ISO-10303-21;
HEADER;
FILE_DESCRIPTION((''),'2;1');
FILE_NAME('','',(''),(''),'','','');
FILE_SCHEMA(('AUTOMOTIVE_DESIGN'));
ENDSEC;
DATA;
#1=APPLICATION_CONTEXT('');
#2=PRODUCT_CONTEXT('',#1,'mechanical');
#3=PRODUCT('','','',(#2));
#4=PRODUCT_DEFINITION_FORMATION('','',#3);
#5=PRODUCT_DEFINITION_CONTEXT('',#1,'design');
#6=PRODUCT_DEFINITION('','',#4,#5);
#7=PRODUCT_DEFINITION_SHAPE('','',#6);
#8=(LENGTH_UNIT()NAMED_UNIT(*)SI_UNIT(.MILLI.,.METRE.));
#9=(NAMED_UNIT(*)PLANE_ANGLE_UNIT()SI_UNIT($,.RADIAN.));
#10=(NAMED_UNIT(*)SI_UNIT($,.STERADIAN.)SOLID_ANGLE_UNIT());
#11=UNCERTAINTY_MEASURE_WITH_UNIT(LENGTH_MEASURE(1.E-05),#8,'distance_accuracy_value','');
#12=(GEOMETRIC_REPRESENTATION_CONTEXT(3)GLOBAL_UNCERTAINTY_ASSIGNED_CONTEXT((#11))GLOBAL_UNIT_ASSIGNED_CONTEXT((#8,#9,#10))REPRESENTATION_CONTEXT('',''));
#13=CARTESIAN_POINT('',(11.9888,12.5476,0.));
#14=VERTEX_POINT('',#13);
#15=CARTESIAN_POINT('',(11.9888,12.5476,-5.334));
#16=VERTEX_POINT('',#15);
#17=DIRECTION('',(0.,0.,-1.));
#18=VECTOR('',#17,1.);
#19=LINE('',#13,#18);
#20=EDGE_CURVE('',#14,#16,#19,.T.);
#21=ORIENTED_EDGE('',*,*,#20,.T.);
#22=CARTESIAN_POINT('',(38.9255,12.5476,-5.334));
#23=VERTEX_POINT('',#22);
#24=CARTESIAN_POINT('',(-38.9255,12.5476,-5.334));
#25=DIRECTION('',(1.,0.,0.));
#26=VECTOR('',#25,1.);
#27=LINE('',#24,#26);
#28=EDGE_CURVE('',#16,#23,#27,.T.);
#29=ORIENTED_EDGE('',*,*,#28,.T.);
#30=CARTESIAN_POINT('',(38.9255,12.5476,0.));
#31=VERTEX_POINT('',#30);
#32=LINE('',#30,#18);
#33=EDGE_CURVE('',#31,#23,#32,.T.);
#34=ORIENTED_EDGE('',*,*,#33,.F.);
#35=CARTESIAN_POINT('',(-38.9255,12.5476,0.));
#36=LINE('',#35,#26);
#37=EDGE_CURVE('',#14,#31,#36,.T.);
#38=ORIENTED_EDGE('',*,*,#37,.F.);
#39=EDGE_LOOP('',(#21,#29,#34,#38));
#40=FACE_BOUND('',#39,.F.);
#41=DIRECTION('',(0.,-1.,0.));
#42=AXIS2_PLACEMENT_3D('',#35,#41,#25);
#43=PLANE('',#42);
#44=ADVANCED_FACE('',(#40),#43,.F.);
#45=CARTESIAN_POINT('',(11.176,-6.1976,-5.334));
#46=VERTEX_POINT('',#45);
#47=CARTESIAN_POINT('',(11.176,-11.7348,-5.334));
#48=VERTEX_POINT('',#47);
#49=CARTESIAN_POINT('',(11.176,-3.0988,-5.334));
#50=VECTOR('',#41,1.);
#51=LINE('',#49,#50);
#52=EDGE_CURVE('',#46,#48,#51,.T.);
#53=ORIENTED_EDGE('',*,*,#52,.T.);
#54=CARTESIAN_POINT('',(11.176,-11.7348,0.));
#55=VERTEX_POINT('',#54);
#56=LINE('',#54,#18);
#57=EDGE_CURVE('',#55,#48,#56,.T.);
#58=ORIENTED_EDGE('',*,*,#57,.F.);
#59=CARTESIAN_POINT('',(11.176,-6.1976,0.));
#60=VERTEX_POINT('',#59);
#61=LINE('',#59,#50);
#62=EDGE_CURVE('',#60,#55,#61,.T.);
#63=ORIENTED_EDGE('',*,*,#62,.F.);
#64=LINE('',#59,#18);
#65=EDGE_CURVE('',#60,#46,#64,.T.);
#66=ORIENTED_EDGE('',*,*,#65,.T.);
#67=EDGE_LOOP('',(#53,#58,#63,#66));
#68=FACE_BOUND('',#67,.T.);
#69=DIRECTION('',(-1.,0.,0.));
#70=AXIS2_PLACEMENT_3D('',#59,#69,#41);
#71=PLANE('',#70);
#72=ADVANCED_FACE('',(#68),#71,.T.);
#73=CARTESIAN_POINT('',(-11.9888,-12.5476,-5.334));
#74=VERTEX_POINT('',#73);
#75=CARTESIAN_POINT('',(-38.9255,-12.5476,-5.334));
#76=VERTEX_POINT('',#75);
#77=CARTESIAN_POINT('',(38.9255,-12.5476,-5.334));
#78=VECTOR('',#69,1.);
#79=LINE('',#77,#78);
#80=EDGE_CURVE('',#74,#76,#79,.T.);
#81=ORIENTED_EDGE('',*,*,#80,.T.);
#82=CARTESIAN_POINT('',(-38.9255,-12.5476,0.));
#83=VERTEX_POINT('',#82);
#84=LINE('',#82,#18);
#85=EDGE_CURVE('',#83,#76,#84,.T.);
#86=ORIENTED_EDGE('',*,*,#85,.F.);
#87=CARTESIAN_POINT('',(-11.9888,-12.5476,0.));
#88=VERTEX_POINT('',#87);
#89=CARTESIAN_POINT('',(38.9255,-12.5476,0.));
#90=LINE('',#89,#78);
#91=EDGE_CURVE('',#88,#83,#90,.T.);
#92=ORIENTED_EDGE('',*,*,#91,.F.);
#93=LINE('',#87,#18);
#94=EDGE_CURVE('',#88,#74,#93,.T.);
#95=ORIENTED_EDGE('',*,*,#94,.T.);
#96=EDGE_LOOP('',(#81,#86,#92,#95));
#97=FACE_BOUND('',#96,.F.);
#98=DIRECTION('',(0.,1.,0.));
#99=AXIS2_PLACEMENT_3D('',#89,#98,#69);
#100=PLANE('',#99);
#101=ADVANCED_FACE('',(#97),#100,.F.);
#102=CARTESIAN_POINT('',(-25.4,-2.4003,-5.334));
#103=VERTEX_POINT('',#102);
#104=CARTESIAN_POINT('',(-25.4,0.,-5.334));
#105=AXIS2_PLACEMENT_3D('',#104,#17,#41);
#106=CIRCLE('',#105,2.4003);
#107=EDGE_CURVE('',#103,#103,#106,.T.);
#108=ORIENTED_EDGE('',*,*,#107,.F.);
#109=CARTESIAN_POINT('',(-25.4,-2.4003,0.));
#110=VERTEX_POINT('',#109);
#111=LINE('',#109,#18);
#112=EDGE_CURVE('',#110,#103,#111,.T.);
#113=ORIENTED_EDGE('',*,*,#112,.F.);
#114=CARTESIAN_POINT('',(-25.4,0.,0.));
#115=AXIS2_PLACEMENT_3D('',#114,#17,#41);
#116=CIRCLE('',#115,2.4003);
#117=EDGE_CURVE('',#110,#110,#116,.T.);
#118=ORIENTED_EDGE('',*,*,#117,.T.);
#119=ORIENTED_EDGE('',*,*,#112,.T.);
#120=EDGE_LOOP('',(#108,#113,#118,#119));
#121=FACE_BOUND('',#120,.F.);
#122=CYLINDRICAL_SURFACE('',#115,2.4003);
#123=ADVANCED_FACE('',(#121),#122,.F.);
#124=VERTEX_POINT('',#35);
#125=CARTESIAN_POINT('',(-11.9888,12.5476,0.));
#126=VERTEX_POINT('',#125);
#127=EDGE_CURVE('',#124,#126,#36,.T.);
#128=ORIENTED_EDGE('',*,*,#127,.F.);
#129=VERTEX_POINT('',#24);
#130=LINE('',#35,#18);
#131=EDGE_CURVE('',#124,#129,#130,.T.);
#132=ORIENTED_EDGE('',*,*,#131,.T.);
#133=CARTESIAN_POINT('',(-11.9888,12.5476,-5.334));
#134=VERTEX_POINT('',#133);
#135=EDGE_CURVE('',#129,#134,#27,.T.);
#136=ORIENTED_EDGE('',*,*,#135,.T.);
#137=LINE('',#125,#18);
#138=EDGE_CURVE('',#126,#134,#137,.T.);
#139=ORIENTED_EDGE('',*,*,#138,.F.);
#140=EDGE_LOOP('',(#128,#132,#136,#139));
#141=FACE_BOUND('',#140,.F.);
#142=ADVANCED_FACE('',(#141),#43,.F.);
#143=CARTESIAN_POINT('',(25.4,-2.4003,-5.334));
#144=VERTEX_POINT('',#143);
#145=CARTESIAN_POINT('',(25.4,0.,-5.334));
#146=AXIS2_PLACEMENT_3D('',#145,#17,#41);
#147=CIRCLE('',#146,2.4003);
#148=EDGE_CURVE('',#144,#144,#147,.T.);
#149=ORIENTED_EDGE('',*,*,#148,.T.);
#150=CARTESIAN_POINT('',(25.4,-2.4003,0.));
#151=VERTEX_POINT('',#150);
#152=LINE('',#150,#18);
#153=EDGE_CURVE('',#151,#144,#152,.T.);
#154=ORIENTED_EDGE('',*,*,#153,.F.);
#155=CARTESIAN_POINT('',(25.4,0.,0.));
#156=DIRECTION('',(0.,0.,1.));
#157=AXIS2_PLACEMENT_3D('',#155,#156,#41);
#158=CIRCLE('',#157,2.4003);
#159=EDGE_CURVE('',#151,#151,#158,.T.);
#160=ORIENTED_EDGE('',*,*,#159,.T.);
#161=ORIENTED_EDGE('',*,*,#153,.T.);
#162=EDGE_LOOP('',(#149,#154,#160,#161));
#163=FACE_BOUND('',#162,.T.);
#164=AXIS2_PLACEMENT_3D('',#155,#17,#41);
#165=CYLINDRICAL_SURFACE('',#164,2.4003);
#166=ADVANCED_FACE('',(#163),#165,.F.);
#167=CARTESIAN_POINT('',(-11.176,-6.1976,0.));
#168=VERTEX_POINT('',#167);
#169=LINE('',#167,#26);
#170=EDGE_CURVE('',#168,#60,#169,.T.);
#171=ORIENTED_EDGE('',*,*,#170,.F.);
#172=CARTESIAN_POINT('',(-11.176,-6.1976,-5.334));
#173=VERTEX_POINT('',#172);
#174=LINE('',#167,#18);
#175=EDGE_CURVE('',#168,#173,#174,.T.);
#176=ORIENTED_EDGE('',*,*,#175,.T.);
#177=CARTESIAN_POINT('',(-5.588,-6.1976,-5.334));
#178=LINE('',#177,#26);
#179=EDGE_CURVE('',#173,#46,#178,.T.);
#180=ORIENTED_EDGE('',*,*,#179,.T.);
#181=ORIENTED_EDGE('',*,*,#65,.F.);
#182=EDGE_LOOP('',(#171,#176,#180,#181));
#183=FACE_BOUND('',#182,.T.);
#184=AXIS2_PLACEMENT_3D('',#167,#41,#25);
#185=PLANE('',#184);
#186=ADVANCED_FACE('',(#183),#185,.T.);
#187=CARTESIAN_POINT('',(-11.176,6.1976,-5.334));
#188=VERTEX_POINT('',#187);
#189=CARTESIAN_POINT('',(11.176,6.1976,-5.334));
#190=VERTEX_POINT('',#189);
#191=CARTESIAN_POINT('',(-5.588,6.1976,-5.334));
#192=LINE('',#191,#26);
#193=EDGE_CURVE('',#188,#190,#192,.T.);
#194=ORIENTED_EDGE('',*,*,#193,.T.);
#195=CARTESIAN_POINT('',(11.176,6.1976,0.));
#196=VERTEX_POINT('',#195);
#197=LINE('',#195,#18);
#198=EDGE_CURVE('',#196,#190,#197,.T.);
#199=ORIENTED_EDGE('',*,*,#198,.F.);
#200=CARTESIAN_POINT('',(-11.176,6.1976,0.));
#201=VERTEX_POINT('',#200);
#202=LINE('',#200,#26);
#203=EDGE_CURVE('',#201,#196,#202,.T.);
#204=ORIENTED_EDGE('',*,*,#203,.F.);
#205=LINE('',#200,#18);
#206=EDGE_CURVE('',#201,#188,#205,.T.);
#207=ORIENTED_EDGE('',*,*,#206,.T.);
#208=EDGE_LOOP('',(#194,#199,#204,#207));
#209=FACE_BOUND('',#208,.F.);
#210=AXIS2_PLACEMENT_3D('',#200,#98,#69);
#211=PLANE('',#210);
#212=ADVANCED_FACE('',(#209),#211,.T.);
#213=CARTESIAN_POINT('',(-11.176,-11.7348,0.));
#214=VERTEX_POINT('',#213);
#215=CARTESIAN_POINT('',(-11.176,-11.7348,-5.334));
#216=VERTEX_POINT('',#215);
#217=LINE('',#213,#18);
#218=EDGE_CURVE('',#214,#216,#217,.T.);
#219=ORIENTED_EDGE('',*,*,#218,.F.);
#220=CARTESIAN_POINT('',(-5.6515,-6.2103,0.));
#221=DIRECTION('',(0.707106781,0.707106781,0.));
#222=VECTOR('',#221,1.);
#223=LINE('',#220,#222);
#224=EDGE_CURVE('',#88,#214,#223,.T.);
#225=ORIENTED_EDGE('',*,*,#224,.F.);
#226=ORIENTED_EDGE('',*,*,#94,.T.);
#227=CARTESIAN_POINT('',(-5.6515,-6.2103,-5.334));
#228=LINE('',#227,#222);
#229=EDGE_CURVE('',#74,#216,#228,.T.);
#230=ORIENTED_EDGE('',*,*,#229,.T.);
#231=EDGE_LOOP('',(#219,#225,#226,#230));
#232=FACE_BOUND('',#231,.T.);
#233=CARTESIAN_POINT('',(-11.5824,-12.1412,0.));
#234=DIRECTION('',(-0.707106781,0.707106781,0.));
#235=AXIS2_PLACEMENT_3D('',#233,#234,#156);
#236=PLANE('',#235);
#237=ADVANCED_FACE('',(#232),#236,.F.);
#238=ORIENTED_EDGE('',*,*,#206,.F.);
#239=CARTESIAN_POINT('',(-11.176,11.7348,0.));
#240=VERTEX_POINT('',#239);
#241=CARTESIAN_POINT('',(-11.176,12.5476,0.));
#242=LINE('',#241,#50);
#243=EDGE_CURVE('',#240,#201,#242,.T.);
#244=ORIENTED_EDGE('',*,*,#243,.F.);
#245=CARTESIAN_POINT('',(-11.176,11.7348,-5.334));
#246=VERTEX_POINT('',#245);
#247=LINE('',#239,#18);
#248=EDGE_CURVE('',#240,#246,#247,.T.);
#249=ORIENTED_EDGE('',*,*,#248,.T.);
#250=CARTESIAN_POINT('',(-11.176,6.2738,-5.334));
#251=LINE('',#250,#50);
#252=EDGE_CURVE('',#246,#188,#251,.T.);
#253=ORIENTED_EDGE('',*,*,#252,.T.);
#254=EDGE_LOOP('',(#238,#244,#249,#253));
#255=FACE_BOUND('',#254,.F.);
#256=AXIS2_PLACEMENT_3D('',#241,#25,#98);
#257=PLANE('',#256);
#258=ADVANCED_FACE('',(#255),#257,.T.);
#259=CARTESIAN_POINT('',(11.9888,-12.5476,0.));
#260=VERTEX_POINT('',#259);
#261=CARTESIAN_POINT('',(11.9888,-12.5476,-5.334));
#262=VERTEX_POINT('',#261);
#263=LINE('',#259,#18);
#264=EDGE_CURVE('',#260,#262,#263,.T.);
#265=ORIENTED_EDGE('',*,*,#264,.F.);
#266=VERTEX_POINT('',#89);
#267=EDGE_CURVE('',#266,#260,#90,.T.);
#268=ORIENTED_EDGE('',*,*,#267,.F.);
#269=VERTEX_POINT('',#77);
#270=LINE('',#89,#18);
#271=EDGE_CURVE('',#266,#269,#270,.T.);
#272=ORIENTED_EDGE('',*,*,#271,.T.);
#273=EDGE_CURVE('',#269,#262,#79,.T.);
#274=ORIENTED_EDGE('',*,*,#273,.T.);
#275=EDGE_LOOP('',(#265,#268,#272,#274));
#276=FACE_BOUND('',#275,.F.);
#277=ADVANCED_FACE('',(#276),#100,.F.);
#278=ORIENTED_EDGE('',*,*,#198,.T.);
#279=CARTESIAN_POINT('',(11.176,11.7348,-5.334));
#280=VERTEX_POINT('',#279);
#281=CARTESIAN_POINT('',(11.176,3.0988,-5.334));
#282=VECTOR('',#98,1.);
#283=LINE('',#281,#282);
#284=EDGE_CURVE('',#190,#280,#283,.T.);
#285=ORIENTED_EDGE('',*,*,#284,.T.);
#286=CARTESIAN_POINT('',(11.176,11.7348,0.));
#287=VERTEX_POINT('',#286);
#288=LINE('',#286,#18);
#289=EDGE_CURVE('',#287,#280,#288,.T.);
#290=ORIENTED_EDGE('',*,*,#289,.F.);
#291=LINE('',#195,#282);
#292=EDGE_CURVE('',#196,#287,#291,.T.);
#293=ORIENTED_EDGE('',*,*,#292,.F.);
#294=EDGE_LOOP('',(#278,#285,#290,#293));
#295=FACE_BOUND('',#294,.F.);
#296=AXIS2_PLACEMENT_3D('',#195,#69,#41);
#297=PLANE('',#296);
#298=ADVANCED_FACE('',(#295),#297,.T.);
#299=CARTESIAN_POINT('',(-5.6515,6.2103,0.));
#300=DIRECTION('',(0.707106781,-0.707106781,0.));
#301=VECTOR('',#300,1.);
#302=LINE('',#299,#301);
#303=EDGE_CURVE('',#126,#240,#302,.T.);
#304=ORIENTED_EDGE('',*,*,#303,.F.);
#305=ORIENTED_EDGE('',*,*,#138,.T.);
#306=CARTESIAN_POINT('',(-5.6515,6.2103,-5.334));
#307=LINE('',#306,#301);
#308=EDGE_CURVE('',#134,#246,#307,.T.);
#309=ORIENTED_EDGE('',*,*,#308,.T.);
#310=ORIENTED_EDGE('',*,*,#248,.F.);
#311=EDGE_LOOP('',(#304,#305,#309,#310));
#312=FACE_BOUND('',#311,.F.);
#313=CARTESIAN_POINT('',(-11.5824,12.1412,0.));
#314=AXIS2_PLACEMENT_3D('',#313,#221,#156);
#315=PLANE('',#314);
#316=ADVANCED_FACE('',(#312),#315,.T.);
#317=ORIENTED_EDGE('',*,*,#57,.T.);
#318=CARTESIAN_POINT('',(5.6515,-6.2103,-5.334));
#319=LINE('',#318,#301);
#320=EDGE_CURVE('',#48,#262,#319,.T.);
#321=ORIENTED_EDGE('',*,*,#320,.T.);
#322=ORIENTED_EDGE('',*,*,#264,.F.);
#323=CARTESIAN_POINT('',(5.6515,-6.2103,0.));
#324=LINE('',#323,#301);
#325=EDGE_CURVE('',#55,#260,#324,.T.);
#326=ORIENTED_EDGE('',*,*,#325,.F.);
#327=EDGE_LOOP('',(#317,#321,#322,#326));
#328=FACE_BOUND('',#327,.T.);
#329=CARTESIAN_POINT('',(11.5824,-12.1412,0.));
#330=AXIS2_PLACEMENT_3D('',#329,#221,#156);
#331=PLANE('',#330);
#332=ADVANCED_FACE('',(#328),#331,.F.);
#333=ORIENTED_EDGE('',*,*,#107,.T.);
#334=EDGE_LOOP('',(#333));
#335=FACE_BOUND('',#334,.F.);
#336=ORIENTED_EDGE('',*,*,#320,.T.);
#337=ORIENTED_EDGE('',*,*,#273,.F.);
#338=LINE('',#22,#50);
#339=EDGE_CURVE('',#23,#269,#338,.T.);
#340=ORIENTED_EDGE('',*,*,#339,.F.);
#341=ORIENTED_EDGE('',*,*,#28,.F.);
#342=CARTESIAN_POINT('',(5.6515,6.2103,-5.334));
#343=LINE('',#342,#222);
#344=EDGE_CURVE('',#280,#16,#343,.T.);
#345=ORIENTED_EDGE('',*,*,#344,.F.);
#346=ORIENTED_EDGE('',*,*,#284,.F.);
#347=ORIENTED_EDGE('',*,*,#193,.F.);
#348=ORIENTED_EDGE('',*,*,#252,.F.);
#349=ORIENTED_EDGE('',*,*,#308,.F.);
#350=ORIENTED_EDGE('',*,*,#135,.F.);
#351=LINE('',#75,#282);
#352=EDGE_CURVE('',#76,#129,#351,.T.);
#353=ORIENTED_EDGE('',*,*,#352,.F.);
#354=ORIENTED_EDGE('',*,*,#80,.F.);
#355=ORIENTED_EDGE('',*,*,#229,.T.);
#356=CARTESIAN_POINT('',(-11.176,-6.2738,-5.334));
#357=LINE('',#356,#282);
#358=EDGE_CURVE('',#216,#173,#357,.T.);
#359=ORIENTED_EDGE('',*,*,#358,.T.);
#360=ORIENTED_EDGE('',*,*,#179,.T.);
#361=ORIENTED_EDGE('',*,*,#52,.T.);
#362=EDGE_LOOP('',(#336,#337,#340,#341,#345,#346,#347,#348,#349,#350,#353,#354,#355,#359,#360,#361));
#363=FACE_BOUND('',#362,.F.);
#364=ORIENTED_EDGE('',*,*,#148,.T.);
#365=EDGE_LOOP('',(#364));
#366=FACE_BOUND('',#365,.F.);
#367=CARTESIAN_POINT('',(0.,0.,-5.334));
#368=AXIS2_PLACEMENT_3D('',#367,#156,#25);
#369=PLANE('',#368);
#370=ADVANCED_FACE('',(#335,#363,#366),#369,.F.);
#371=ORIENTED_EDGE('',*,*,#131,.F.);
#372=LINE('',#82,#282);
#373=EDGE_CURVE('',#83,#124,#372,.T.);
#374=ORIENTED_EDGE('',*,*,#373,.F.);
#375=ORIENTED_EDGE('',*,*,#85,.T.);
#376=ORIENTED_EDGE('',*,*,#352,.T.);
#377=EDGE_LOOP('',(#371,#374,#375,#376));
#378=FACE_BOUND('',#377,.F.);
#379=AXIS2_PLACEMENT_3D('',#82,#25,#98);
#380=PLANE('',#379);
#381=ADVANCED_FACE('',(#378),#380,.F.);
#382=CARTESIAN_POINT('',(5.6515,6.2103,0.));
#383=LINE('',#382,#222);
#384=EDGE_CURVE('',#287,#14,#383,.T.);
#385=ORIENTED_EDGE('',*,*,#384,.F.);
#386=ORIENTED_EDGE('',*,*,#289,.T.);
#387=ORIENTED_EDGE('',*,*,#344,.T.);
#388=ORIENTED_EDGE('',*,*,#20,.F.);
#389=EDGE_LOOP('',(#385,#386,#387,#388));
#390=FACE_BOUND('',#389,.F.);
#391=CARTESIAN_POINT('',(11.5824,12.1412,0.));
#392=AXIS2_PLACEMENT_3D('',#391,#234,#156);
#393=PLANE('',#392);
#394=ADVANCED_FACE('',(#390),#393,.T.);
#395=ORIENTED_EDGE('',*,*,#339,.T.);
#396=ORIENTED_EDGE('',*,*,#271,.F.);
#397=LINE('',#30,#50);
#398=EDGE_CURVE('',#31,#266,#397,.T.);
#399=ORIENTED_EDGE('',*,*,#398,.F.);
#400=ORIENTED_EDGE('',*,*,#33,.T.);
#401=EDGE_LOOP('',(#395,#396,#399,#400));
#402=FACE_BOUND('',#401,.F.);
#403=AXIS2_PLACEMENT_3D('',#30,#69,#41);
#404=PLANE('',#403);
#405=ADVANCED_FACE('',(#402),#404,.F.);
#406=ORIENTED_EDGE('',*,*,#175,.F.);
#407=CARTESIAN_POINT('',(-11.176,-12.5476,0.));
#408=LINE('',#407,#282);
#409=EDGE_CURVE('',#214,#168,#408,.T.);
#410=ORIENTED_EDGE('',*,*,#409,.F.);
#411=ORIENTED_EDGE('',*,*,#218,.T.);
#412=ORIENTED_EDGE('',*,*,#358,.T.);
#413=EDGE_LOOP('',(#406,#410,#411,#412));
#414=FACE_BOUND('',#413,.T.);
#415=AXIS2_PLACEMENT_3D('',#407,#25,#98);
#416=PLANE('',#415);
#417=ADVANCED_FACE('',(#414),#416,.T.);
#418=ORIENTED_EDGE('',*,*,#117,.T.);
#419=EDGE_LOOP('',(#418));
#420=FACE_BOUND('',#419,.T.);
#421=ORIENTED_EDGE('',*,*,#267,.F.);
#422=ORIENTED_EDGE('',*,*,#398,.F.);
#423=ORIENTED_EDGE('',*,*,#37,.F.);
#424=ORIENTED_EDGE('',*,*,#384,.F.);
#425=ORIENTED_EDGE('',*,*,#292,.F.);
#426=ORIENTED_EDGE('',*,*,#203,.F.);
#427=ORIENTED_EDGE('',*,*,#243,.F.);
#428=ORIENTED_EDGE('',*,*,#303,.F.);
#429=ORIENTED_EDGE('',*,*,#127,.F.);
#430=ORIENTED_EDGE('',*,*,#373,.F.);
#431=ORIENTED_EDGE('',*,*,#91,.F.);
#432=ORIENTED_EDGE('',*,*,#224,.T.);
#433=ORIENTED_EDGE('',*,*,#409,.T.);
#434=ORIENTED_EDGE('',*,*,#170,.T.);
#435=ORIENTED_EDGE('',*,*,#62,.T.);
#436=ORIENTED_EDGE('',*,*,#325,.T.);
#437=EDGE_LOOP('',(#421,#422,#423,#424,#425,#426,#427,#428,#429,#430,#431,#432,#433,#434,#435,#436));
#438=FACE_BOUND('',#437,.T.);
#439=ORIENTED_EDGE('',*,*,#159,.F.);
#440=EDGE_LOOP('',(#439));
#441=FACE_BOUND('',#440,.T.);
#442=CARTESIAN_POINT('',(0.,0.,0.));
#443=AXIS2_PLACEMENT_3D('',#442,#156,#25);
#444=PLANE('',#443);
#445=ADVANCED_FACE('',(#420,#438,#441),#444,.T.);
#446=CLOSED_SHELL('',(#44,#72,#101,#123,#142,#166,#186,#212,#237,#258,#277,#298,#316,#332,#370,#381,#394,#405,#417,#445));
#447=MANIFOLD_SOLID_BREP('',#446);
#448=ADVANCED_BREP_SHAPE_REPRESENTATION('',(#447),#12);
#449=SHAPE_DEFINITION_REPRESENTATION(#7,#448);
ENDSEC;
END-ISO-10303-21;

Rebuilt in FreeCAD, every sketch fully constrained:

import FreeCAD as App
import Part
import Sketcher
from FreeCAD import Vector
Q = App.Units.Quantity


def edges_at(feature, points):
    """Names of the edges that pass closest to the given points."""
    edges = feature.Shape.Edges
    near = lambda p: min(range(len(edges)), key=lambda i: edges[i].distToShape(Part.Vertex(*p))[0])
    return sorted({f"Edge{near(p) + 1}" for p in points})


def add_polygon(sketch, points):
    """Adds a closed chain of lines whose ends are joined by coincident constraints."""
    first, n = sketch.GeometryCount, len(points)
    for a, b in zip(points, points[1:] + points[:1]):
        sketch.addGeometry(Part.LineSegment(App.Vector(*a, 0), App.Vector(*b, 0)), False)
    for i in range(n):
        sketch.addConstraint(Sketcher.Constraint("Coincident", first + i, 2, first + (i + 1) % n, 1))

doc = App.newDocument("Part")
params = doc.addObject("Spreadsheet::Sheet", "Params")
for row, (alias, value) in enumerate([
    ("sketch1_width", "3.065 in"),
    ("sketch1_height", "0.988 in"),
    ("pad1_length", "0.21 in"),
    ("sketch2_width", "0.88 in"),
    ("sketch2_height", "0.25 in"),
    ("pocket1_length", "1 in"),
    ("sketch3_diameter", "0.189 in"),
    ("hole_diameter", "0.189 in"),
    ("chamfer_size", "0.032 in"),
], start=1):
    params.set(f"A{row}", alias)
    params.set(f"B{row}", "=" + value)
    params.setAlias(f"B{row}", alias)

body = doc.addObject("PartDesign::Body", "Body")

sketch1 = doc.addObject("Sketcher::SketchObject", "Sketch")
body.addObject(sketch1)
sketch1.AttachmentSupport = (doc.XY_Plane, [""])
sketch1.MapMode = "FlatFace"
add_polygon(sketch1, [(39, 13), (-39, 13), (-39, -13), (39, -13)])
sketch1.addConstraint([
    Sketcher.Constraint("Horizontal", 0),
    Sketcher.Constraint("Vertical", 1),
    Sketcher.Constraint("Horizontal", 2),
    Sketcher.Constraint("Vertical", 3),
    Sketcher.Constraint("Symmetric", 0, 2, 2, 2, -1, 1),
    Sketcher.Constraint("DistanceX", 0, 2, 0, 1, Q("3.065 in")),
    Sketcher.Constraint("DistanceY", 1, 2, 1, 1, Q("0.988 in")),
])
sketch1.setExpression("Constraints[9]", "Params.sketch1_width")
sketch1.setExpression("Constraints[10]", "Params.sketch1_height")
pad1 = doc.addObject("PartDesign::Pad", "Pad")
body.addObject(pad1)
pad1.Profile = sketch1
pad1.setExpression("Length", "Params.pad1_length")
pad1.Reversed = True

sketch2 = doc.addObject("Sketcher::SketchObject", "Sketch001")
body.addObject(sketch2)
sketch2.AttachmentSupport = (doc.XY_Plane, [""])
sketch2.MapMode = "FlatFace"
add_polygon(sketch2, [(-11, -13), (11, -13), (11, -6), (-11, -6)])
sketch2.addConstraint([
    Sketcher.Constraint("Horizontal", 0),
    Sketcher.Constraint("Vertical", 1),
    Sketcher.Constraint("Horizontal", 2),
    Sketcher.Constraint("Vertical", 3),
    Sketcher.Constraint("DistanceX", 0, 1, 0, 2, Q("0.88 in")),
    Sketcher.Constraint("DistanceY", 1, 1, 1, 2, Q("0.25 in")),
    Sketcher.Constraint("DistanceX", -1, 1, 0, 2, Q("0.44 in")),
    Sketcher.Constraint("DistanceY", 0, 2, -1, 1, Q("0.494 in")),
])
sketch2.setExpression("Constraints[8]", "Params.sketch2_width")
sketch2.setExpression("Constraints[9]", "Params.sketch2_height")
pocket1 = doc.addObject("PartDesign::Pocket", "Pocket")
body.addObject(pocket1)
pocket1.Profile = sketch2
pocket1.setExpression("Length", "Params.pocket1_length")
doc.recompute()

mirrored = doc.addObject("PartDesign::Mirrored", "Mirrored")
body.addObject(mirrored)
mirrored.Originals = [pocket1]
mirrored.MirrorPlane = (doc.XZ_Plane, [""])
body.Tip = mirrored

sketch3 = doc.addObject("Sketcher::SketchObject", "Sketch002")
body.addObject(sketch3)
sketch3.AttachmentSupport = (doc.XY_Plane, [""])
sketch3.MapMode = "FlatFace"
sketch3.addGeometry(Part.Circle(Vector(-25.4, 0, 0), Vector(0, 0, 1), 2.4), False)
sketch3.addConstraint([
    Sketcher.Constraint("PointOnObject", 0, 3, -1),
    Sketcher.Constraint("Diameter", 0, Q("0.189 in")),
    Sketcher.Constraint("DistanceX", 0, 3, -1, 1, Q("1 in")),
])
sketch3.setExpression("Constraints[1]", "Params.sketch3_diameter")
doc.recompute()
hole = doc.addObject("PartDesign::Hole", "Hole")
body.addObject(hole)
hole.Profile = sketch3
hole.ThreadType = "None"
hole.setExpression("Diameter", "Params.hole_diameter")
hole.DepthType = "ThroughAll"
doc.recompute()

mirrored2 = doc.addObject("PartDesign::Mirrored", "Mirrored001")
body.addObject(mirrored2)
mirrored2.Originals = [hole]
mirrored2.MirrorPlane = (doc.YZ_Plane, [""])
body.Tip = mirrored2
doc.recompute()

chamfer = doc.addObject("PartDesign::Chamfer", "Chamfer")
body.addObject(chamfer)
chamfer.Base = (mirrored2, edges_at(mirrored2, [
    (11.176, 12.548, -2.667),
    (-11.176, 12.548, -2.667),
    (11.176, -12.548, -2.667),
    (-11.176, -12.548, -2.667),
]))
chamfer.setExpression("Size", "Params.chamfer_size")

doc.recompute()
